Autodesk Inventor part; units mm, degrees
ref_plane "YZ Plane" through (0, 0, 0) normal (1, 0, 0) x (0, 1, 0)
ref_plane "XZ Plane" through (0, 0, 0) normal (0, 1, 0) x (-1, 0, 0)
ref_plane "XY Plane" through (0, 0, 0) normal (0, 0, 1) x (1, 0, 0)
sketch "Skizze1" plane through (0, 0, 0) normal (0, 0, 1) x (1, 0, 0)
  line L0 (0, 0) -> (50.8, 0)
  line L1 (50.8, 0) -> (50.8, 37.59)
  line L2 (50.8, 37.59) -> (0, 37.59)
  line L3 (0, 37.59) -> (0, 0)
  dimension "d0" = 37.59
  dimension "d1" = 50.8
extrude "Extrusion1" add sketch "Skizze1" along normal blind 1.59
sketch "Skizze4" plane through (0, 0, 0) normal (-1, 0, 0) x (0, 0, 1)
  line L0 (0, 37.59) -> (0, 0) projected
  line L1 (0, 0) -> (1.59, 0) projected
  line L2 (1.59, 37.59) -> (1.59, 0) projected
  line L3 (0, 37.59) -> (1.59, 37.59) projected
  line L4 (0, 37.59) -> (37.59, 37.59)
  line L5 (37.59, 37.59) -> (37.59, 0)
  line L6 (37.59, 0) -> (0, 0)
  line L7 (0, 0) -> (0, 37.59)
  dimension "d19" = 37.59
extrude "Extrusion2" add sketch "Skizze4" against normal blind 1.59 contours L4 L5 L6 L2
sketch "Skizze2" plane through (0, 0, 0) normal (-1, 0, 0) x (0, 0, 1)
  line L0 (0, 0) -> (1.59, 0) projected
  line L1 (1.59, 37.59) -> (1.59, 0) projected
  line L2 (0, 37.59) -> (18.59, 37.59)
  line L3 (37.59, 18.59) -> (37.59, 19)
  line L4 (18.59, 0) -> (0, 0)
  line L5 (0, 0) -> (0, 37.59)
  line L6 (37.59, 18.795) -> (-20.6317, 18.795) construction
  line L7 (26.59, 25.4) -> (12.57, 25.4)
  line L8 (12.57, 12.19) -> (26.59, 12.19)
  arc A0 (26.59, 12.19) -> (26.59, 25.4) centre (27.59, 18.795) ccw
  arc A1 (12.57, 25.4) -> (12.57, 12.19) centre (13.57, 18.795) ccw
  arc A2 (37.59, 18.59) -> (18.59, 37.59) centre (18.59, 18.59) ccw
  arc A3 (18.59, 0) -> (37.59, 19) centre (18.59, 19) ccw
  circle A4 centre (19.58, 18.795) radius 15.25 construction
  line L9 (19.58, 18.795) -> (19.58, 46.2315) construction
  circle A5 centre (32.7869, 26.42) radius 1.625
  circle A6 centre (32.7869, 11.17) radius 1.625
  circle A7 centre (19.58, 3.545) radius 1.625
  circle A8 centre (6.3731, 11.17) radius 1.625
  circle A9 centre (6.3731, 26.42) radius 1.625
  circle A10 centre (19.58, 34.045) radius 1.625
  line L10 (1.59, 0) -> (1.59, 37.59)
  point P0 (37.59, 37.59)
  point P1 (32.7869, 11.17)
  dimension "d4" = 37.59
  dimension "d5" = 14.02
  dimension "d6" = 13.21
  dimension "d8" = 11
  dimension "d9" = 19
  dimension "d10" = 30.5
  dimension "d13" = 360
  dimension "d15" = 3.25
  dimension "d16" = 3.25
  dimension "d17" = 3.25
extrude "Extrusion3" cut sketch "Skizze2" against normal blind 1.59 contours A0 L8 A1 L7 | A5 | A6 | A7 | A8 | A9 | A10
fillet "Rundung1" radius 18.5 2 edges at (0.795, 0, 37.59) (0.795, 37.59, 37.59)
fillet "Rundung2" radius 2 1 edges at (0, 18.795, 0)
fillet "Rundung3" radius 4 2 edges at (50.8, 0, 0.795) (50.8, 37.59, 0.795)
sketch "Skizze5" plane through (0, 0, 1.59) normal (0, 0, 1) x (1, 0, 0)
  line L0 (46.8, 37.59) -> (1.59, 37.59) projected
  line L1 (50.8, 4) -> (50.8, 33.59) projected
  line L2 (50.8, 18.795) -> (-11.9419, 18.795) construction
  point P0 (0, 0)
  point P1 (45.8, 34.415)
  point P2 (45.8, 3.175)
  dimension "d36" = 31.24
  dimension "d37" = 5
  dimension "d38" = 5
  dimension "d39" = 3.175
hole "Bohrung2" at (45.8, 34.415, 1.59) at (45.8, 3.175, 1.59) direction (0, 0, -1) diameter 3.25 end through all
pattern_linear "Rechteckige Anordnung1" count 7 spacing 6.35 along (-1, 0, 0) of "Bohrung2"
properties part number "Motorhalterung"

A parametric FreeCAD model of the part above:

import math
import FreeCAD as App
import Part
import Sketcher

V = App.Vector


def edges_at(feature, points):
    """Names of the edges that pass closest to the given points."""
    edges = feature.Shape.Edges
    near = lambda p: min(range(len(edges)), key=lambda i: edges[i].distToShape(Part.Vertex(*p))[0])
    return sorted({f"Edge{near(p) + 1}" for p in points})


def add_polygon(sketch, points):
    """Adds a closed chain of lines whose ends are joined by coincident constraints."""
    first, n = sketch.GeometryCount, len(points)
    for a, b in zip(points, points[1:] + points[:1]):
        sketch.addGeometry(Part.LineSegment(App.Vector(*a, 0), App.Vector(*b, 0)), False)
    for i in range(n):
        sketch.addConstraint(Sketcher.Constraint("Coincident", first + i, 2, first + (i + 1) % n, 1))

doc = App.newDocument("Part")
body = doc.addObject("PartDesign::Body", "Body")

# Sketch on XY plane
sketch1 = body.newObject("Sketcher::SketchObject", "Sketch")
sketch1.AttachmentSupport = (doc.getObject("XY_Plane"), [""])
sketch1.MapMode = "FlatFace"
add_polygon(sketch1, [(0, 38), (0, 0), (51, 0), (51, 38)])  # lines 0-3
sketch1.addConstraint(Sketcher.Constraint("Vertical", 0))
sketch1.addConstraint(Sketcher.Constraint("Horizontal", 1))
sketch1.addConstraint(Sketcher.Constraint("Vertical", 2))
sketch1.addConstraint(Sketcher.Constraint("Horizontal", 3))
sketch1.addConstraint(Sketcher.Constraint("Coincident", 0, 2, -1, 1))
sketch1.addConstraint(Sketcher.Constraint("DistanceX", 1, 1, 1, 2, 50.8))
sketch1.addConstraint(Sketcher.Constraint("DistanceY", 0, 2, 0, 1, 37.59))
pad1 = body.newObject("PartDesign::Pad", "Pad")
pad1.Profile = sketch1
pad1.Length = 1.59

# Sketch on YZ plane
sketch2 = body.newObject("Sketcher::SketchObject", "Sketch001")
sketch2.AttachmentSupport = (doc.getObject("YZ_Plane"), [""])
sketch2.MapMode = "FlatFace"
add_polygon(sketch2, [(38, 38), (38, 2), (0, 2), (0, 38)])  # lines 0-3
sketch2.addConstraint(Sketcher.Constraint("Vertical", 0))
sketch2.addConstraint(Sketcher.Constraint("Horizontal", 1))
sketch2.addConstraint(Sketcher.Constraint("Vertical", 2))
sketch2.addConstraint(Sketcher.Constraint("Horizontal", 3))
sketch2.addConstraint(Sketcher.Constraint("PointOnObject", 1, 2, -2))
sketch2.addConstraint(Sketcher.Constraint("DistanceX", 1, 2, 1, 1, 37.59))
sketch2.addConstraint(Sketcher.Constraint("DistanceY", 0, 2, 0, 1, 36.0))
sketch2.addConstraint(Sketcher.Constraint("DistanceY", -1, 1, 2, 2, 37.59))
pad2 = body.newObject("PartDesign::Pad", "Pad001")
pad2.Profile = sketch2
pad2.Length = 1.59

# Sketch on YZ plane
sketch3 = body.newObject("Sketcher::SketchObject", "Sketch002")
sketch3.AttachmentSupport = (doc.getObject("YZ_Plane"), [""])
sketch3.MapMode = "FlatFace"
sketch3.addGeometry(Part.ArcOfCircle(Part.Circle(V(18.8, 27.6, 0), V(0, 0, 1), 6.7), math.radians(-9), math.radians(189)), False)
sketch3.addGeometry(Part.LineSegment(V(25.4, 26.6, 0), V(25.4, 12.6, 0)), False)
sketch3.addGeometry(Part.ArcOfCircle(Part.Circle(V(18.8, 13.6, 0), V(0, 0, 1), 6.7), math.radians(-171), math.radians(-9)), False)
sketch3.addGeometry(Part.LineSegment(V(12.2, 12.6, 0), V(12.2, 26.6, 0)), False)
sketch3.addGeometry(Part.Circle(V(26.4, 32.8, 0), V(0, 0, 1), 1.6), False)
sketch3.addGeometry(Part.Circle(V(11.2, 32.8, 0), V(0, 0, 1), 1.6), False)
sketch3.addGeometry(Part.Circle(V(3.5, 19.6, 0), V(0, 0, 1), 1.6), False)
sketch3.addGeometry(Part.Circle(V(11.2, 6.4, 0), V(0, 0, 1), 1.6), False)
sketch3.addGeometry(Part.Circle(V(26.4, 6.4, 0), V(0, 0, 1), 1.6), False)
sketch3.addGeometry(Part.Circle(V(34, 19.6, 0), V(0, 0, 1), 1.6), False)
sketch3.addConstraint(Sketcher.Constraint("Coincident", 0, 1, 1, 1))
sketch3.addConstraint(Sketcher.Constraint("Coincident", 1, 2, 2, 2))
sketch3.addConstraint(Sketcher.Constraint("Coincident", 2, 1, 3, 1))
sketch3.addConstraint(Sketcher.Constraint("Coincident", 3, 2, 0, 2))
sketch3.addConstraint(Sketcher.Constraint("Vertical", 1))
sketch3.addConstraint(Sketcher.Constraint("Vertical", 3))
sketch3.addConstraint(Sketcher.Constraint("Equal", 0, 2))
sketch3.addConstraint(Sketcher.Constraint("Equal", 4, 5))
sketch3.addConstraint(Sketcher.Constraint("Equal", 5, 6))
sketch3.addConstraint(Sketcher.Constraint("Equal", 6, 7))
sketch3.addConstraint(Sketcher.Constraint("Equal", 7, 8))
sketch3.addConstraint(Sketcher.Constraint("Equal", 8, 9))
sketch3.addConstraint(Sketcher.Constraint("Horizontal", 4, 3, 5, 3))
sketch3.addConstraint(Sketcher.Constraint("Horizontal", 7, 3, 8, 3))
sketch3.addConstraint(Sketcher.Constraint("Horizontal", 6, 3, 9, 3))
sketch3.addConstraint(Sketcher.Constraint("Horizontal", 1, 2, 2, 1))
sketch3.addConstraint(Sketcher.Constraint("Horizontal", 0, 1, 3, 2))
sketch3.addConstraint(Sketcher.Constraint("Vertical", 5, 3, 7, 3))
sketch3.addConstraint(Sketcher.Constraint("Vertical", 4, 3, 8, 3))
sketch3.addConstraint(Sketcher.Constraint("Diameter", 4, 3.25))
sketch3.addConstraint(Sketcher.Constraint("DistanceY", 1, 2, 1, 1, 14.02))
sketch3.addConstraint(Sketcher.Constraint("DistanceX", 2, 1, 1, 2, 13.21))
sketch3.addConstraint(Sketcher.Constraint("DistanceY", 0, 1, 0, 3, 1.0))
sketch3.addConstraint(Sketcher.Constraint("DistanceX", -1, 1, 0, 1, 25.4))
sketch3.addConstraint(Sketcher.Constraint("DistanceY", -1, 1, 0, 3, 27.59))
sketch3.addConstraint(Sketcher.Constraint("DistanceX", -1, 1, 4, 3, 26.42))
sketch3.addConstraint(Sketcher.Constraint("DistanceX", -1, 1, 5, 3, 11.17))
sketch3.addConstraint(Sketcher.Constraint("DistanceY", -1, 1, 6, 3, 19.58))
sketch3.addConstraint(Sketcher.Constraint("DistanceX", 6, 3, 2, 3, 15.25))
sketch3.addConstraint(Sketcher.Constraint("DistanceX", 2, 3, 9, 3, 15.25))
sketch3.addConstraint(Sketcher.Constraint("DistanceY", -1, 1, 4, 3, 32.787))
sketch3.addConstraint(Sketcher.Constraint("DistanceY", -1, 1, 7, 3, 6.373))
pocket1 = body.newObject("PartDesign::Pocket", "Pocket")
pocket1.Profile = sketch3
pocket1.Length = 1.59
pocket1.Reversed = True
doc.recompute()

fillet = body.newObject("PartDesign::Fillet", "Fillet")
fillet.Base = (pocket1, edges_at(pocket1, [(0.795, 0, 37.59), (0.795, 37.59, 37.59)]))
fillet.Radius = 18.5
doc.recompute()

fillet2 = body.newObject("PartDesign::Fillet", "Fillet001")
fillet2.Base = (fillet, edges_at(fillet, [(0, 18.795, 0)]))
fillet2.Radius = 2
doc.recompute()

fillet3 = body.newObject("PartDesign::Fillet", "Fillet002")
fillet3.Base = (fillet2, edges_at(fillet2, [(50.8, 0, 0.795), (50.8, 37.59, 0.795)]))
fillet3.Radius = 4

# Sketch on XY plane
sketch4 = body.newObject("Sketcher::SketchObject", "Sketch003")
sketch4.AttachmentSupport = (doc.getObject("XY_Plane"), [""])
sketch4.MapMode = "FlatFace"
sketch4.AttachmentOffset = App.Placement(V(0, 0, 1.59), App.Rotation())
sketch4.addGeometry(Part.Circle(V(45.8, 34.4, 0), V(0, 0, 1), 1.6), False)
sketch4.addGeometry(Part.Circle(V(45.8, 3.2, 0), V(0, 0, 1), 1.6), False)
sketch4.addConstraint(Sketcher.Constraint("Equal", 0, 1))
sketch4.addConstraint(Sketcher.Constraint("Vertical", 0, 3, 1, 3))
sketch4.addConstraint(Sketcher.Constraint("Diameter", 0, 3.25))
sketch4.addConstraint(Sketcher.Constraint("DistanceX", -1, 1, 0, 3, 45.8))
sketch4.addConstraint(Sketcher.Constraint("DistanceY", 1, 3, 0, 3, 31.24))
sketch4.addConstraint(Sketcher.Constraint("DistanceY", -1, 1, 0, 3, 34.415))
doc.recompute()
hole = body.newObject("PartDesign::Hole", "Hole")
hole.Profile = sketch4
hole.ThreadType = "None"
hole.Diameter = 3.25
hole.DepthType = "ThroughAll"
doc.recompute()

linearpattern = body.newObject("PartDesign::LinearPattern", "LinearPattern")
linearpattern.Originals = [hole]
linearpattern.Direction = (doc.getObject("X_Axis"), [""])
linearpattern.Mode = "offset"
linearpattern.Offset = 6.35
linearpattern.Occurrences = 7
linearpattern.Reversed = True
body.Tip = linearpattern

doc.recompute()
